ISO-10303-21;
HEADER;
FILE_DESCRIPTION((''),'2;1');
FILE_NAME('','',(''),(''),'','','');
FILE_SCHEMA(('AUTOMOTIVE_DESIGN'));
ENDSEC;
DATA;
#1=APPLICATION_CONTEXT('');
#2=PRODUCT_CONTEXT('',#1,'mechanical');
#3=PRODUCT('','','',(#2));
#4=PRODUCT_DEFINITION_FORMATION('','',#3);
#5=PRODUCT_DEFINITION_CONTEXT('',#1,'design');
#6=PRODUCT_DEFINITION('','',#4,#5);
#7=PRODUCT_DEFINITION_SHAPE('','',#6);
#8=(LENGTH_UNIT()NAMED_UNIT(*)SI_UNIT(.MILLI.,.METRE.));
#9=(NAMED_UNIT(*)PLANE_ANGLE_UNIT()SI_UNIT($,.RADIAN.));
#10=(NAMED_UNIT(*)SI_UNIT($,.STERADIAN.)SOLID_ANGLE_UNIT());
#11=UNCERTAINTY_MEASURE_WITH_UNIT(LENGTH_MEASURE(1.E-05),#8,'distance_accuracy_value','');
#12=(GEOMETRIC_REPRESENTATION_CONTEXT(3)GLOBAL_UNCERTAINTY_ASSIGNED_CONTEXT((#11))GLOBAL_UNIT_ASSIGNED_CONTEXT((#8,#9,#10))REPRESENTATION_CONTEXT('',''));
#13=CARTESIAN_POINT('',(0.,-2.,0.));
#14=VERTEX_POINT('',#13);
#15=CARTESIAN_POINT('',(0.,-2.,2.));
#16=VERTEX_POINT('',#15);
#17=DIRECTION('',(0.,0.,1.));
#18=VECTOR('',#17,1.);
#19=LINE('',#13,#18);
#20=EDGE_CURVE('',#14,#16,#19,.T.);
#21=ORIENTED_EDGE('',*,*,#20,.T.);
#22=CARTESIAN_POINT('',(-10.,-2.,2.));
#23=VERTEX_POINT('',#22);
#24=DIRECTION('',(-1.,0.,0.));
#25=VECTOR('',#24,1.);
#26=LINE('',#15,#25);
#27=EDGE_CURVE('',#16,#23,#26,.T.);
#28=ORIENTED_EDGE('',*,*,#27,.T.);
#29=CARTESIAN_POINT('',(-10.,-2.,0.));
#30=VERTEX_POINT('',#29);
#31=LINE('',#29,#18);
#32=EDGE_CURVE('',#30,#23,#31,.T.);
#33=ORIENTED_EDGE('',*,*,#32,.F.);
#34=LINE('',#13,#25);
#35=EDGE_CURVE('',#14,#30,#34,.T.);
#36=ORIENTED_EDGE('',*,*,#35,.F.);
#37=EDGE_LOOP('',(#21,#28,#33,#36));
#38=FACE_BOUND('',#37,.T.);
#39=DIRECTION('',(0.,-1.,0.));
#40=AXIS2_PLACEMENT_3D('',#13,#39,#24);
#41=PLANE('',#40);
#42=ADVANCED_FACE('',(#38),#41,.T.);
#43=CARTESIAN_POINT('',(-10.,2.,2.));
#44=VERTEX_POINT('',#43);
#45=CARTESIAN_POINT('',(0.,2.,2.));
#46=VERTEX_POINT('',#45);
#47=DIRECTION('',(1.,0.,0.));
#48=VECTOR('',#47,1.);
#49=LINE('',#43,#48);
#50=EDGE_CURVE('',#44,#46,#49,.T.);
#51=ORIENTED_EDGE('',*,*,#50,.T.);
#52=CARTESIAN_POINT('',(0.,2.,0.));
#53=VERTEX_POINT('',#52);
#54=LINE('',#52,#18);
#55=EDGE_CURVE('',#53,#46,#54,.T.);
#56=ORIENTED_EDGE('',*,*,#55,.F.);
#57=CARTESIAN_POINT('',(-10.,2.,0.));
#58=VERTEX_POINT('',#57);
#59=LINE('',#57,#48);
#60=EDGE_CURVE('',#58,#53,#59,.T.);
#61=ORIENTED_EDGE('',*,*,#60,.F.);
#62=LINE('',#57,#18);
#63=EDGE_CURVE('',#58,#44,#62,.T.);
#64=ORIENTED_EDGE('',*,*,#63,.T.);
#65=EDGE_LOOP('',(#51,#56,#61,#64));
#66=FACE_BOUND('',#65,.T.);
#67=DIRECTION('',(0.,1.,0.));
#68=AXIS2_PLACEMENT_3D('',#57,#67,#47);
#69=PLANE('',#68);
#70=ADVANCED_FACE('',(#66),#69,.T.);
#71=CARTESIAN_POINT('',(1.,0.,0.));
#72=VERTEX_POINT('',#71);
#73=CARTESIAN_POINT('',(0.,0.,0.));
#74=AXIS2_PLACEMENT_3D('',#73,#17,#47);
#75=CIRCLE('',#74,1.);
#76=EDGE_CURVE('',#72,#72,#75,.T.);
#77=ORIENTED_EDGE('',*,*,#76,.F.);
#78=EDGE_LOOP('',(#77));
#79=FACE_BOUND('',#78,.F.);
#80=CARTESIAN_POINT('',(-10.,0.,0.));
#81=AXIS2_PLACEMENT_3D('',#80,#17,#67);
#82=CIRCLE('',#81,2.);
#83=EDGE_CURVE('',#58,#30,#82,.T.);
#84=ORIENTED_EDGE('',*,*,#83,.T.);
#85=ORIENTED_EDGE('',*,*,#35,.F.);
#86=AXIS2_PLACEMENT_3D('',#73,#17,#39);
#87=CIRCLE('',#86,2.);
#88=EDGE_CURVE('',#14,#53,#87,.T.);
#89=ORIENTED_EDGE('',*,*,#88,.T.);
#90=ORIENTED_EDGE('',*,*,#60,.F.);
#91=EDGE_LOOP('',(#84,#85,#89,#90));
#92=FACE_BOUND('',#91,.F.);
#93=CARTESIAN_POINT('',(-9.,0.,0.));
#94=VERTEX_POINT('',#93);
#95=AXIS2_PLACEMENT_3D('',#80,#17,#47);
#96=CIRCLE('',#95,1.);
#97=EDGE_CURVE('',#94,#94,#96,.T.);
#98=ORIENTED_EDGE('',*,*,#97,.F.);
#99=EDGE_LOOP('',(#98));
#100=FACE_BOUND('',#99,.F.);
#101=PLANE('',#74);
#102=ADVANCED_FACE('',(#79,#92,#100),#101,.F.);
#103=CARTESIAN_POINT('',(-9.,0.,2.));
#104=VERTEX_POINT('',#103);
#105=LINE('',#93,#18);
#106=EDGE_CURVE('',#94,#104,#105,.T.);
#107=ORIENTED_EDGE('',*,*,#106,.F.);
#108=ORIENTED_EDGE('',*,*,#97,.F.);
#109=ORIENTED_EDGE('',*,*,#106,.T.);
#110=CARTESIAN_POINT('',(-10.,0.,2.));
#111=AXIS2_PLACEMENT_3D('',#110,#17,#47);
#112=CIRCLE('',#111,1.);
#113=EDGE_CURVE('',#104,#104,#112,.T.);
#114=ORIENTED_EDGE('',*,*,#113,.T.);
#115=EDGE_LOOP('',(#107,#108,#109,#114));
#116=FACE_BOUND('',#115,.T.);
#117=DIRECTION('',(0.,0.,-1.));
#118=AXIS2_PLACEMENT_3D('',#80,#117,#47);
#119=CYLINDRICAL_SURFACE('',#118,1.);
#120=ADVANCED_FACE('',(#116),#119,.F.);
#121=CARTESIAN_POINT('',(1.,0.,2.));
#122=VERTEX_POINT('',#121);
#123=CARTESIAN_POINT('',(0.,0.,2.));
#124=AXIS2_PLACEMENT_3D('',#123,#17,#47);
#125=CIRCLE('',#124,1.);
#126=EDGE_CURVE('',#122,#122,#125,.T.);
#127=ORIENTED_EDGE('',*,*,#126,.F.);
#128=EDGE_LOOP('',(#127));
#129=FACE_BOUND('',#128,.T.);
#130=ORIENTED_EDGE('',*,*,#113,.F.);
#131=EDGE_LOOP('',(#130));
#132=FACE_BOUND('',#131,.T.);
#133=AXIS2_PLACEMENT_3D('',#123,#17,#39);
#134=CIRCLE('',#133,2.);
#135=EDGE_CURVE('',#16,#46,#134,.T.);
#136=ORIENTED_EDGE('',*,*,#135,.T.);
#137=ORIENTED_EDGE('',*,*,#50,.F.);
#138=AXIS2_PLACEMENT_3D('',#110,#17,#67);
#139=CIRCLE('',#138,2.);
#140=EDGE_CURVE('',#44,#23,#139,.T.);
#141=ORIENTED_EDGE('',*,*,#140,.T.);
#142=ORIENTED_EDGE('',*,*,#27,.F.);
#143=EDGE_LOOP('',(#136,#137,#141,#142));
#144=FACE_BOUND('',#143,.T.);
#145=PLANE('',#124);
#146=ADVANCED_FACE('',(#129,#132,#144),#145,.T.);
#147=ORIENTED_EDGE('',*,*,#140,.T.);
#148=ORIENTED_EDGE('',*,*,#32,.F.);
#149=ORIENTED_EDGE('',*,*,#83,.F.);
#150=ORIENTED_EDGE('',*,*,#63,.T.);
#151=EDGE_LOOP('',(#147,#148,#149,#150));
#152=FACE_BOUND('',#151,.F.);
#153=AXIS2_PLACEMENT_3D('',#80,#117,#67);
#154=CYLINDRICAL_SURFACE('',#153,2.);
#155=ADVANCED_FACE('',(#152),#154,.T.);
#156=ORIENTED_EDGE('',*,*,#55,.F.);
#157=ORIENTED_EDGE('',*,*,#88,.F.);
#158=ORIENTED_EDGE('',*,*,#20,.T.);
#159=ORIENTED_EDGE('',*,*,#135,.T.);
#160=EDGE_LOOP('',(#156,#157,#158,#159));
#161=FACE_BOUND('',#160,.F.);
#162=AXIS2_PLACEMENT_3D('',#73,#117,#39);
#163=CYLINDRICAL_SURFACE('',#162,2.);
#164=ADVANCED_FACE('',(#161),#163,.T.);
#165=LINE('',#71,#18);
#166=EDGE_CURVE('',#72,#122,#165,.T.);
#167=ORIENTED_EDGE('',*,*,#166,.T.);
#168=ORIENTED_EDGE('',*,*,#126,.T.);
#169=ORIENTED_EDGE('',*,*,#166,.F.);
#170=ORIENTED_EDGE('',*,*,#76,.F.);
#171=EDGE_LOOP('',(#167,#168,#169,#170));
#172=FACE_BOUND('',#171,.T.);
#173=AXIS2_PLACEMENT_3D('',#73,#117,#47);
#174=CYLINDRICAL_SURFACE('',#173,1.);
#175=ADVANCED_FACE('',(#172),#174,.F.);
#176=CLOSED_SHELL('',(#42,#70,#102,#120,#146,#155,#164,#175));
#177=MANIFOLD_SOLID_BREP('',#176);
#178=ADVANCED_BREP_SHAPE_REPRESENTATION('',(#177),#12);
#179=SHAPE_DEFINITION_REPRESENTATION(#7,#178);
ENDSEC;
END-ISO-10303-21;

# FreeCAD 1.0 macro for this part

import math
import FreeCAD as App
import Part
import Sketcher

V = App.Vector
Q = App.Units.Quantity

doc = App.newDocument("Part")
body = doc.addObject("PartDesign::Body", "Body")

# Sketch on XY plane
sketch1 = doc.addObject("Sketcher::SketchObject", "Sketch")
body.addObject(sketch1)
sketch1.AttachmentSupport = (doc.XY_Plane, [""])
sketch1.MapMode = "FlatFace"
sketch1.addGeometry(Part.LineSegment(V(0, 2, 0), V(-10, 2, 0)), False)
sketch1.addGeometry(Part.ArcOfCircle(Part.Circle(V(-10, 0, 0), V(0, 0, 1), 2), math.radians(90), math.radians(270)), False)
sketch1.addGeometry(Part.LineSegment(V(-10, -2, 0), V(0, -2, 0)), False)
sketch1.addGeometry(Part.ArcOfCircle(Part.Circle(V(0, 0, 0), V(0, 0, 1), 2), math.radians(-90), math.radians(90)), False)
sketch1.addGeometry(Part.Circle(V(-10, 0, 0), V(0, 0, 1), 1), False)
sketch1.addGeometry(Part.Circle(V(0, 0, 0), V(0, 0, 1), 1), False)
sketch1.addConstraint(Sketcher.Constraint("Tangent", 0, 2, 1, 1))
sketch1.addConstraint(Sketcher.Constraint("Tangent", 1, 2, 2, 1))
sketch1.addConstraint(Sketcher.Constraint("Tangent", 2, 2, 3, 1))
sketch1.addConstraint(Sketcher.Constraint("Tangent", 3, 2, 0, 1))
sketch1.addConstraint(Sketcher.Constraint("Horizontal", 0))
sketch1.addConstraint(Sketcher.Constraint("Horizontal", 2))
sketch1.addConstraint(Sketcher.Constraint("Coincident", 3, 3, -1, 1))
sketch1.addConstraint(Sketcher.Constraint("Coincident", 5, 3, -1, 1))
sketch1.addConstraint(Sketcher.Constraint("Coincident", 4, 3, 1, 3))
sketch1.addConstraint(Sketcher.Constraint("Equal", 4, 5))
sketch1.addConstraint(Sketcher.Constraint("Diameter", 4, Q("2 mm")))
sketch1.addConstraint(Sketcher.Constraint("Radius", 1, Q("2 mm")))
sketch1.addConstraint(Sketcher.Constraint("DistanceX", 0, 2, 0, 1, Q("10 mm")))
pad1 = doc.addObject("PartDesign::Pad", "Pad")
body.addObject(pad1)
pad1.Profile = sketch1
pad1.Length = 2

doc.recompute()
